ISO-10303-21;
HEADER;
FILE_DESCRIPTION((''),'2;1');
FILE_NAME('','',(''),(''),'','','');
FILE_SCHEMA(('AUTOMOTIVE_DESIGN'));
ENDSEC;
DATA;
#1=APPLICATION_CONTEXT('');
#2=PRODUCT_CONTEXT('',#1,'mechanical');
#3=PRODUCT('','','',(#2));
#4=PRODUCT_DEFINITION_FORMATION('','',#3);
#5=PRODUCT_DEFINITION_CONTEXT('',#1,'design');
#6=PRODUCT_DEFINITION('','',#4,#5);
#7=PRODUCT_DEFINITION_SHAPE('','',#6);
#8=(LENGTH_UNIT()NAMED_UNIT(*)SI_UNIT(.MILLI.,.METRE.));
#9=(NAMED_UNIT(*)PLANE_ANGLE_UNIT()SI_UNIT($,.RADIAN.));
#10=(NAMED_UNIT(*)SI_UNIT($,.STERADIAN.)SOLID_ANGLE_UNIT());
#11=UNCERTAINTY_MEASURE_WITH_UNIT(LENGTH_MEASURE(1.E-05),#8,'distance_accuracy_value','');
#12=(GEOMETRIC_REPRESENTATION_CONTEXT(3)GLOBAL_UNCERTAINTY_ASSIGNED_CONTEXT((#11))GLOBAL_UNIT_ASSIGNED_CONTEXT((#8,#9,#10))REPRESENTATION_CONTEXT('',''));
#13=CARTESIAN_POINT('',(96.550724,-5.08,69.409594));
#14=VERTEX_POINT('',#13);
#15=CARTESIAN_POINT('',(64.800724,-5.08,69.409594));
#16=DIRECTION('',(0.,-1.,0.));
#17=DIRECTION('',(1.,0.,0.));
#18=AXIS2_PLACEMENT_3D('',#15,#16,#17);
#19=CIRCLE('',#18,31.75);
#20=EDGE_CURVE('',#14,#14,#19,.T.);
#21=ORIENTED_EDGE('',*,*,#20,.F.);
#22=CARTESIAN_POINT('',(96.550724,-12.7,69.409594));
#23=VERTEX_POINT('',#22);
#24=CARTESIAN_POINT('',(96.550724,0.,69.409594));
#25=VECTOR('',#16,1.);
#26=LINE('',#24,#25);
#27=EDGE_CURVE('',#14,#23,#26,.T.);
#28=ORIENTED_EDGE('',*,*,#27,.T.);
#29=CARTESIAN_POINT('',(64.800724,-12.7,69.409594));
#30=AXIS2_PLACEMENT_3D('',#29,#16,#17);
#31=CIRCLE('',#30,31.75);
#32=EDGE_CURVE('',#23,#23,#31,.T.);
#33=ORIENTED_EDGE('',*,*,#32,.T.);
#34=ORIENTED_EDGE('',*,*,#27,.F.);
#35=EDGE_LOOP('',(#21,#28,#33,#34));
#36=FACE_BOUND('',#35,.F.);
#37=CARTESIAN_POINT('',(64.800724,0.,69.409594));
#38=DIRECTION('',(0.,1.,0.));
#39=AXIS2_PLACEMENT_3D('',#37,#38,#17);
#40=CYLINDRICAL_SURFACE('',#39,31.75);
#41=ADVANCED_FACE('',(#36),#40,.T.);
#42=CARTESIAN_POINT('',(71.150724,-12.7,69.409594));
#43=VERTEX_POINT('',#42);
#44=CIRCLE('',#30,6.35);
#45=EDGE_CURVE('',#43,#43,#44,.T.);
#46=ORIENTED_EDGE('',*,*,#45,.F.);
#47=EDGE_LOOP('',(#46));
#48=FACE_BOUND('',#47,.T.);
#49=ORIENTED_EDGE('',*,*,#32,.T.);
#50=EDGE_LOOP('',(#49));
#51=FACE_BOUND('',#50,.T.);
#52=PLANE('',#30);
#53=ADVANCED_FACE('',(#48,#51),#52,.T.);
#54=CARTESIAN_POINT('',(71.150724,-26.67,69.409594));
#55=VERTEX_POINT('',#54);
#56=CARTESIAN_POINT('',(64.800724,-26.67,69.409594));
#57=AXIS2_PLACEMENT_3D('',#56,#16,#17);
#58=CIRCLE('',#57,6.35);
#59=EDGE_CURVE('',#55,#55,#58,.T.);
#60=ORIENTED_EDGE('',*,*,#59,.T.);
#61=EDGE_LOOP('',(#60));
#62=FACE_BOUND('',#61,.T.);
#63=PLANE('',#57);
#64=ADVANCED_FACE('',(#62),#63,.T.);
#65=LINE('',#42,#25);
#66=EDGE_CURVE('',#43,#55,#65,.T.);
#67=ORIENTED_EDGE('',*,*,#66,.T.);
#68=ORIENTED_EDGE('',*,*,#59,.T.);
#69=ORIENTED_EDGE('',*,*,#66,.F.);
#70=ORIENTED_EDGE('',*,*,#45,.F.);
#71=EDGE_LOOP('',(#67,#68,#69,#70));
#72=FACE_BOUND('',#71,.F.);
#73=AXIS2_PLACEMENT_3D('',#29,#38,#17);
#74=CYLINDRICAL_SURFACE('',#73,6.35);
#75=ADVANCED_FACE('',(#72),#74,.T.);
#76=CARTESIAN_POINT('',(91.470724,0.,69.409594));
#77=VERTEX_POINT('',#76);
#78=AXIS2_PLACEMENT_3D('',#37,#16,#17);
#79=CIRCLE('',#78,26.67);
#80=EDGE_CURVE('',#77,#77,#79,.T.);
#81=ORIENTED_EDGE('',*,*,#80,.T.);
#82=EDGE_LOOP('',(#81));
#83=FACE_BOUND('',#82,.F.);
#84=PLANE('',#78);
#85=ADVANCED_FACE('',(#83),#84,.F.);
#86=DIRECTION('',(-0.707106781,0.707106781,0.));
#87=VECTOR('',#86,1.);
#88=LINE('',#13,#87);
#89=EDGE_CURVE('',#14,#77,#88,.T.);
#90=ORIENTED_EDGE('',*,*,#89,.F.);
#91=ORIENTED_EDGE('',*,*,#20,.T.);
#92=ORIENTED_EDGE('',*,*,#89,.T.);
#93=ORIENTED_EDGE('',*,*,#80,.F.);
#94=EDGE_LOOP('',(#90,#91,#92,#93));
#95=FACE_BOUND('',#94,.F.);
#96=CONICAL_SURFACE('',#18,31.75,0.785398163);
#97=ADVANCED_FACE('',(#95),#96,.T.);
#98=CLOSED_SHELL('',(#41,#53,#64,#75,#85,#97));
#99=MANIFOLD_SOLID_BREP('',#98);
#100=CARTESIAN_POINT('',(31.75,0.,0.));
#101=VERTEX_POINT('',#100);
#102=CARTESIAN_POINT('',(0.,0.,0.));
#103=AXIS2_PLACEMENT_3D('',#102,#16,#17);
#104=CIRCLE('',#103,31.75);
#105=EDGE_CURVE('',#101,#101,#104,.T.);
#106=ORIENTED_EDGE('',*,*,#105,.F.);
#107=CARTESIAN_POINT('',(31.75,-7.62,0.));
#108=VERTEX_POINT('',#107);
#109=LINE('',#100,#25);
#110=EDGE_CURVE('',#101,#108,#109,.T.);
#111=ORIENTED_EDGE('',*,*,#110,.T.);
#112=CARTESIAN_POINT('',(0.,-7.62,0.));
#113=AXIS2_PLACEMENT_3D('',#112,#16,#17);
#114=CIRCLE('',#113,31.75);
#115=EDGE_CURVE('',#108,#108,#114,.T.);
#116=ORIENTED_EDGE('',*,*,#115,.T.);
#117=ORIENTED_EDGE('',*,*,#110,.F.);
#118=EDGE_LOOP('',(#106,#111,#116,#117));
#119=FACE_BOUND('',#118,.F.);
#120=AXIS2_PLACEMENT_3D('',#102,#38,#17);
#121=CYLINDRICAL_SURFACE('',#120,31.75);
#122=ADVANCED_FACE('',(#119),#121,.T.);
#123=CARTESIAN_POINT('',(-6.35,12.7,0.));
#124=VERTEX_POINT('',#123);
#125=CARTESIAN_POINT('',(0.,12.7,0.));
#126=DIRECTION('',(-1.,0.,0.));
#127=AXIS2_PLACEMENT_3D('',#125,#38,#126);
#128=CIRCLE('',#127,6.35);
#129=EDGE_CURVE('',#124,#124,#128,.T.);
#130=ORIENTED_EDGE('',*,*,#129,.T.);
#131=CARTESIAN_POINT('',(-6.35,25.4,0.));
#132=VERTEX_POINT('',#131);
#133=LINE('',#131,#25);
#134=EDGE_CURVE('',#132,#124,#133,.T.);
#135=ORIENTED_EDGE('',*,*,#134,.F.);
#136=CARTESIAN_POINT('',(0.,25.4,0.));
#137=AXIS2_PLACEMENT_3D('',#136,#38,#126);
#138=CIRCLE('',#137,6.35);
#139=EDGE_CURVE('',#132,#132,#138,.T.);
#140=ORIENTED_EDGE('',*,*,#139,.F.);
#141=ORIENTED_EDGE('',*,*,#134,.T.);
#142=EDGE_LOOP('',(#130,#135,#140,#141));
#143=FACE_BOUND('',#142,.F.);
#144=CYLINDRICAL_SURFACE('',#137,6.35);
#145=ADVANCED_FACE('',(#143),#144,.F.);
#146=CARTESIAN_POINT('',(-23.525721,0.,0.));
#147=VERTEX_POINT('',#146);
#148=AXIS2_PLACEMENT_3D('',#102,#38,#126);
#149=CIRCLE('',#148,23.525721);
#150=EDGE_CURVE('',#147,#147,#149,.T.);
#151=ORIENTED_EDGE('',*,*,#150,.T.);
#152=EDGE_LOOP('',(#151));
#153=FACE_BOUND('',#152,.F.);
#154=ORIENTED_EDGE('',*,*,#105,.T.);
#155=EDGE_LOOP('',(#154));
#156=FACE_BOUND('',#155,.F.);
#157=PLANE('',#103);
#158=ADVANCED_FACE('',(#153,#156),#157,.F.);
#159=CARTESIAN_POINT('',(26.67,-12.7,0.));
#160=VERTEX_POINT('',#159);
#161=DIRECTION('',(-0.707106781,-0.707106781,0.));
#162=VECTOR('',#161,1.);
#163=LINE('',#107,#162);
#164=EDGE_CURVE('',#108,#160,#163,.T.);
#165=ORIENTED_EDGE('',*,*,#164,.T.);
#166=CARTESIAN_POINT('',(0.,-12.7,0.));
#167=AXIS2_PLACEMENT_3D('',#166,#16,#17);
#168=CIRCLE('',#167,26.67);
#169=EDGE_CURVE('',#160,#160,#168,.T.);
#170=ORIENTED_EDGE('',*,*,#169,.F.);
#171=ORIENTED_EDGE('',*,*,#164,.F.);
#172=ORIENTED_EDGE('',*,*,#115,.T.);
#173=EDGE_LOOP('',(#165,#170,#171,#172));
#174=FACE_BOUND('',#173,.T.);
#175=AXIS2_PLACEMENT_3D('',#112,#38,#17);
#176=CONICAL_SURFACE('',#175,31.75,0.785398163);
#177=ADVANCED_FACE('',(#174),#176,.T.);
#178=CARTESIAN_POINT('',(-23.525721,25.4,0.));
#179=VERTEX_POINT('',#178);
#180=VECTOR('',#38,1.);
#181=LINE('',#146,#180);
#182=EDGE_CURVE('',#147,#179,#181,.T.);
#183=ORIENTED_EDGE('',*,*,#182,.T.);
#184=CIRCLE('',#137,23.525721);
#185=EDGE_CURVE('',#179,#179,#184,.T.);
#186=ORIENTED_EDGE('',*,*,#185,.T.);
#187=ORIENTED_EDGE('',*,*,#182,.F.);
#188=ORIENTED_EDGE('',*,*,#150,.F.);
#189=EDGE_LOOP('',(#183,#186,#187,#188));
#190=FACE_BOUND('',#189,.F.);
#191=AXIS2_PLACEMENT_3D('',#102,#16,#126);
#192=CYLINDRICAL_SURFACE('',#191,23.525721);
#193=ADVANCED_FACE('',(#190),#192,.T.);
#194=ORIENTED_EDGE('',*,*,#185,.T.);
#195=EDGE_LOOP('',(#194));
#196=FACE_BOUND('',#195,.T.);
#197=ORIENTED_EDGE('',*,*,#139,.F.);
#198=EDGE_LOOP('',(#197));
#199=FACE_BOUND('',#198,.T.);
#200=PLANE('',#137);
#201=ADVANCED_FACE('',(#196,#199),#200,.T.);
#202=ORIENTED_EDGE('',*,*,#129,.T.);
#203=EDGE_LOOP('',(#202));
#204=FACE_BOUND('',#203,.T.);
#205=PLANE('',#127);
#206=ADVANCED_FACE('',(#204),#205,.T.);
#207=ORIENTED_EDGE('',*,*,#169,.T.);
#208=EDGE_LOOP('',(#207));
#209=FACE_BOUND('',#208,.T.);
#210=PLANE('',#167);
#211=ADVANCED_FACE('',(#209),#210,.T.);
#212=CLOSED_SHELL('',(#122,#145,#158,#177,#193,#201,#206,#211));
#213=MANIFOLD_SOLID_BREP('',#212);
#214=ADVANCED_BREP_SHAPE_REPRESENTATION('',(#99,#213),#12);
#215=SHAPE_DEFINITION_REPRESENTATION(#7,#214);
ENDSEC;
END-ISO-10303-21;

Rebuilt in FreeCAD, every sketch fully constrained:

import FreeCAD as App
import Part
import Sketcher
Q = App.Units.Quantity


def edges_at(feature, points):
    """Names of the edges that pass closest to the given points."""
    edges = feature.Shape.Edges
    near = lambda p: min(range(len(edges)), key=lambda i: edges[i].distToShape(Part.Vertex(*p))[0])
    return sorted({f"Edge{near(p) + 1}" for p in points})

doc = App.newDocument("Part")
body = doc.addObject("PartDesign::Body", "Body")

# Sketch on XZ plane
sketch1 = body.newObject("Sketcher::SketchObject", "Sketch")
sketch1.AttachmentSupport = (doc.getObject("XZ_Plane"), [""])
sketch1.MapMode = "FlatFace"
sketch1.addGeometry(Part.Circle(App.Vector(0, 0, 0), App.Vector(0, 0, 1), 31.75), False)
sketch1.addConstraint(Sketcher.Constraint("Coincident", 0, 3, -1, 1))
sketch1.addConstraint(Sketcher.Constraint("Diameter", 0, Q("2.5 in")))
pad1 = body.newObject("PartDesign::Pad", "Pad")
pad1.Profile = sketch1
pad1.Length = Q("0.5 in")

# Sketch on XZ plane
sketch2 = body.newObject("Sketcher::SketchObject", "Sketch001")
sketch2.AttachmentSupport = (doc.getObject("XZ_Plane"), [""])
sketch2.MapMode = "FlatFace"
sketch2.addGeometry(Part.Circle(App.Vector(0, 0, 0), App.Vector(0, 0, 1), 23.525721), False)
sketch2.addConstraint(Sketcher.Constraint("Coincident", 0, 3, -1, 1))
sketch2.addConstraint(Sketcher.Constraint("Diameter", 0, 47.051442))
pad2 = body.newObject("PartDesign::Pad", "Pad001")
pad2.Profile = sketch2
pad2.Length = Q("1 in")
pad2.Reversed = True

# Sketch on XZ plane
sketch3 = body.newObject("Sketcher::SketchObject", "Sketch002")
sketch3.AttachmentSupport = (doc.getObject("XZ_Plane"), [""])
sketch3.MapMode = "FlatFace"
sketch3.AttachmentOffset = App.Placement(App.Vector(0, 0, -1 * 25.4), App.Rotation())
sketch3.addGeometry(Part.Circle(App.Vector(0, 0, 0), App.Vector(0, 0, 1), 6.35), False)
sketch3.addConstraint(Sketcher.Constraint("Coincident", 0, 3, -1, 1))
sketch3.addConstraint(Sketcher.Constraint("Diameter", 0, Q("0.5 in")))
pocket1 = body.newObject("PartDesign::Pocket", "Pocket")
pocket1.Profile = sketch3
pocket1.Length = Q("0.5 in")
pocket1.Reversed = True
doc.recompute()

chamfer = body.newObject("PartDesign::Chamfer", "Chamfer")
chamfer.Base = (pocket1, edges_at(pocket1, [(-31.75, -12.7, 0)]))
chamfer.Size = Q("0.2 in")
body2 = doc.addObject("PartDesign::Body", "Body001")

# Sketch on XZ plane
sketch4 = body2.newObject("Sketcher::SketchObject", "Sketch003")
sketch4.AttachmentSupport = (doc.getObject("XZ_Plane001"), [""])
sketch4.MapMode = "FlatFace"
sketch4.addGeometry(Part.Circle(App.Vector(64.800724, 69.409594, 0), App.Vector(0, 0, 1), 31.75), False)
sketch4.addConstraint(Sketcher.Constraint("Diameter", 0, Q("2.5 in")))
sketch4.addConstraint(Sketcher.Constraint("DistanceX", -1, 1, 0, 3, 64.800724))
sketch4.addConstraint(Sketcher.Constraint("DistanceY", -1, 1, 0, 3, 69.409594))
pad3 = body2.newObject("PartDesign::Pad", "Pad002")
pad3.Profile = sketch4
pad3.Length = Q("0.5 in")

# Sketch on XZ plane
sketch5 = body2.newObject("Sketcher::SketchObject", "Sketch004")
sketch5.AttachmentSupport = (doc.getObject("XZ_Plane001"), [""])
sketch5.MapMode = "FlatFace"
sketch5.AttachmentOffset = App.Placement(App.Vector(0, 0, 0.5 * 25.4), App.Rotation())
sketch5.addGeometry(Part.Circle(App.Vector(64.800724, 69.409594, 0), App.Vector(0, 0, 1), 6.35), False)
sketch5.addConstraint(Sketcher.Constraint("Diameter", 0, Q("0.5 in")))
sketch5.addConstraint(Sketcher.Constraint("DistanceX", -1, 1, 0, 3, 64.800724))
sketch5.addConstraint(Sketcher.Constraint("DistanceY", -1, 1, 0, 3, 69.409594))
pad4 = body2.newObject("PartDesign::Pad", "Pad003")
pad4.Profile = sketch5
pad4.Length = Q("0.55 in")
doc.recompute()

chamfer2 = body2.newObject("PartDesign::Chamfer", "Chamfer001")
chamfer2.Base = (pad4, edges_at(pad4, [(33.051, 0, 69.41)]))
chamfer2.Size = Q("0.2 in")

doc.recompute()
